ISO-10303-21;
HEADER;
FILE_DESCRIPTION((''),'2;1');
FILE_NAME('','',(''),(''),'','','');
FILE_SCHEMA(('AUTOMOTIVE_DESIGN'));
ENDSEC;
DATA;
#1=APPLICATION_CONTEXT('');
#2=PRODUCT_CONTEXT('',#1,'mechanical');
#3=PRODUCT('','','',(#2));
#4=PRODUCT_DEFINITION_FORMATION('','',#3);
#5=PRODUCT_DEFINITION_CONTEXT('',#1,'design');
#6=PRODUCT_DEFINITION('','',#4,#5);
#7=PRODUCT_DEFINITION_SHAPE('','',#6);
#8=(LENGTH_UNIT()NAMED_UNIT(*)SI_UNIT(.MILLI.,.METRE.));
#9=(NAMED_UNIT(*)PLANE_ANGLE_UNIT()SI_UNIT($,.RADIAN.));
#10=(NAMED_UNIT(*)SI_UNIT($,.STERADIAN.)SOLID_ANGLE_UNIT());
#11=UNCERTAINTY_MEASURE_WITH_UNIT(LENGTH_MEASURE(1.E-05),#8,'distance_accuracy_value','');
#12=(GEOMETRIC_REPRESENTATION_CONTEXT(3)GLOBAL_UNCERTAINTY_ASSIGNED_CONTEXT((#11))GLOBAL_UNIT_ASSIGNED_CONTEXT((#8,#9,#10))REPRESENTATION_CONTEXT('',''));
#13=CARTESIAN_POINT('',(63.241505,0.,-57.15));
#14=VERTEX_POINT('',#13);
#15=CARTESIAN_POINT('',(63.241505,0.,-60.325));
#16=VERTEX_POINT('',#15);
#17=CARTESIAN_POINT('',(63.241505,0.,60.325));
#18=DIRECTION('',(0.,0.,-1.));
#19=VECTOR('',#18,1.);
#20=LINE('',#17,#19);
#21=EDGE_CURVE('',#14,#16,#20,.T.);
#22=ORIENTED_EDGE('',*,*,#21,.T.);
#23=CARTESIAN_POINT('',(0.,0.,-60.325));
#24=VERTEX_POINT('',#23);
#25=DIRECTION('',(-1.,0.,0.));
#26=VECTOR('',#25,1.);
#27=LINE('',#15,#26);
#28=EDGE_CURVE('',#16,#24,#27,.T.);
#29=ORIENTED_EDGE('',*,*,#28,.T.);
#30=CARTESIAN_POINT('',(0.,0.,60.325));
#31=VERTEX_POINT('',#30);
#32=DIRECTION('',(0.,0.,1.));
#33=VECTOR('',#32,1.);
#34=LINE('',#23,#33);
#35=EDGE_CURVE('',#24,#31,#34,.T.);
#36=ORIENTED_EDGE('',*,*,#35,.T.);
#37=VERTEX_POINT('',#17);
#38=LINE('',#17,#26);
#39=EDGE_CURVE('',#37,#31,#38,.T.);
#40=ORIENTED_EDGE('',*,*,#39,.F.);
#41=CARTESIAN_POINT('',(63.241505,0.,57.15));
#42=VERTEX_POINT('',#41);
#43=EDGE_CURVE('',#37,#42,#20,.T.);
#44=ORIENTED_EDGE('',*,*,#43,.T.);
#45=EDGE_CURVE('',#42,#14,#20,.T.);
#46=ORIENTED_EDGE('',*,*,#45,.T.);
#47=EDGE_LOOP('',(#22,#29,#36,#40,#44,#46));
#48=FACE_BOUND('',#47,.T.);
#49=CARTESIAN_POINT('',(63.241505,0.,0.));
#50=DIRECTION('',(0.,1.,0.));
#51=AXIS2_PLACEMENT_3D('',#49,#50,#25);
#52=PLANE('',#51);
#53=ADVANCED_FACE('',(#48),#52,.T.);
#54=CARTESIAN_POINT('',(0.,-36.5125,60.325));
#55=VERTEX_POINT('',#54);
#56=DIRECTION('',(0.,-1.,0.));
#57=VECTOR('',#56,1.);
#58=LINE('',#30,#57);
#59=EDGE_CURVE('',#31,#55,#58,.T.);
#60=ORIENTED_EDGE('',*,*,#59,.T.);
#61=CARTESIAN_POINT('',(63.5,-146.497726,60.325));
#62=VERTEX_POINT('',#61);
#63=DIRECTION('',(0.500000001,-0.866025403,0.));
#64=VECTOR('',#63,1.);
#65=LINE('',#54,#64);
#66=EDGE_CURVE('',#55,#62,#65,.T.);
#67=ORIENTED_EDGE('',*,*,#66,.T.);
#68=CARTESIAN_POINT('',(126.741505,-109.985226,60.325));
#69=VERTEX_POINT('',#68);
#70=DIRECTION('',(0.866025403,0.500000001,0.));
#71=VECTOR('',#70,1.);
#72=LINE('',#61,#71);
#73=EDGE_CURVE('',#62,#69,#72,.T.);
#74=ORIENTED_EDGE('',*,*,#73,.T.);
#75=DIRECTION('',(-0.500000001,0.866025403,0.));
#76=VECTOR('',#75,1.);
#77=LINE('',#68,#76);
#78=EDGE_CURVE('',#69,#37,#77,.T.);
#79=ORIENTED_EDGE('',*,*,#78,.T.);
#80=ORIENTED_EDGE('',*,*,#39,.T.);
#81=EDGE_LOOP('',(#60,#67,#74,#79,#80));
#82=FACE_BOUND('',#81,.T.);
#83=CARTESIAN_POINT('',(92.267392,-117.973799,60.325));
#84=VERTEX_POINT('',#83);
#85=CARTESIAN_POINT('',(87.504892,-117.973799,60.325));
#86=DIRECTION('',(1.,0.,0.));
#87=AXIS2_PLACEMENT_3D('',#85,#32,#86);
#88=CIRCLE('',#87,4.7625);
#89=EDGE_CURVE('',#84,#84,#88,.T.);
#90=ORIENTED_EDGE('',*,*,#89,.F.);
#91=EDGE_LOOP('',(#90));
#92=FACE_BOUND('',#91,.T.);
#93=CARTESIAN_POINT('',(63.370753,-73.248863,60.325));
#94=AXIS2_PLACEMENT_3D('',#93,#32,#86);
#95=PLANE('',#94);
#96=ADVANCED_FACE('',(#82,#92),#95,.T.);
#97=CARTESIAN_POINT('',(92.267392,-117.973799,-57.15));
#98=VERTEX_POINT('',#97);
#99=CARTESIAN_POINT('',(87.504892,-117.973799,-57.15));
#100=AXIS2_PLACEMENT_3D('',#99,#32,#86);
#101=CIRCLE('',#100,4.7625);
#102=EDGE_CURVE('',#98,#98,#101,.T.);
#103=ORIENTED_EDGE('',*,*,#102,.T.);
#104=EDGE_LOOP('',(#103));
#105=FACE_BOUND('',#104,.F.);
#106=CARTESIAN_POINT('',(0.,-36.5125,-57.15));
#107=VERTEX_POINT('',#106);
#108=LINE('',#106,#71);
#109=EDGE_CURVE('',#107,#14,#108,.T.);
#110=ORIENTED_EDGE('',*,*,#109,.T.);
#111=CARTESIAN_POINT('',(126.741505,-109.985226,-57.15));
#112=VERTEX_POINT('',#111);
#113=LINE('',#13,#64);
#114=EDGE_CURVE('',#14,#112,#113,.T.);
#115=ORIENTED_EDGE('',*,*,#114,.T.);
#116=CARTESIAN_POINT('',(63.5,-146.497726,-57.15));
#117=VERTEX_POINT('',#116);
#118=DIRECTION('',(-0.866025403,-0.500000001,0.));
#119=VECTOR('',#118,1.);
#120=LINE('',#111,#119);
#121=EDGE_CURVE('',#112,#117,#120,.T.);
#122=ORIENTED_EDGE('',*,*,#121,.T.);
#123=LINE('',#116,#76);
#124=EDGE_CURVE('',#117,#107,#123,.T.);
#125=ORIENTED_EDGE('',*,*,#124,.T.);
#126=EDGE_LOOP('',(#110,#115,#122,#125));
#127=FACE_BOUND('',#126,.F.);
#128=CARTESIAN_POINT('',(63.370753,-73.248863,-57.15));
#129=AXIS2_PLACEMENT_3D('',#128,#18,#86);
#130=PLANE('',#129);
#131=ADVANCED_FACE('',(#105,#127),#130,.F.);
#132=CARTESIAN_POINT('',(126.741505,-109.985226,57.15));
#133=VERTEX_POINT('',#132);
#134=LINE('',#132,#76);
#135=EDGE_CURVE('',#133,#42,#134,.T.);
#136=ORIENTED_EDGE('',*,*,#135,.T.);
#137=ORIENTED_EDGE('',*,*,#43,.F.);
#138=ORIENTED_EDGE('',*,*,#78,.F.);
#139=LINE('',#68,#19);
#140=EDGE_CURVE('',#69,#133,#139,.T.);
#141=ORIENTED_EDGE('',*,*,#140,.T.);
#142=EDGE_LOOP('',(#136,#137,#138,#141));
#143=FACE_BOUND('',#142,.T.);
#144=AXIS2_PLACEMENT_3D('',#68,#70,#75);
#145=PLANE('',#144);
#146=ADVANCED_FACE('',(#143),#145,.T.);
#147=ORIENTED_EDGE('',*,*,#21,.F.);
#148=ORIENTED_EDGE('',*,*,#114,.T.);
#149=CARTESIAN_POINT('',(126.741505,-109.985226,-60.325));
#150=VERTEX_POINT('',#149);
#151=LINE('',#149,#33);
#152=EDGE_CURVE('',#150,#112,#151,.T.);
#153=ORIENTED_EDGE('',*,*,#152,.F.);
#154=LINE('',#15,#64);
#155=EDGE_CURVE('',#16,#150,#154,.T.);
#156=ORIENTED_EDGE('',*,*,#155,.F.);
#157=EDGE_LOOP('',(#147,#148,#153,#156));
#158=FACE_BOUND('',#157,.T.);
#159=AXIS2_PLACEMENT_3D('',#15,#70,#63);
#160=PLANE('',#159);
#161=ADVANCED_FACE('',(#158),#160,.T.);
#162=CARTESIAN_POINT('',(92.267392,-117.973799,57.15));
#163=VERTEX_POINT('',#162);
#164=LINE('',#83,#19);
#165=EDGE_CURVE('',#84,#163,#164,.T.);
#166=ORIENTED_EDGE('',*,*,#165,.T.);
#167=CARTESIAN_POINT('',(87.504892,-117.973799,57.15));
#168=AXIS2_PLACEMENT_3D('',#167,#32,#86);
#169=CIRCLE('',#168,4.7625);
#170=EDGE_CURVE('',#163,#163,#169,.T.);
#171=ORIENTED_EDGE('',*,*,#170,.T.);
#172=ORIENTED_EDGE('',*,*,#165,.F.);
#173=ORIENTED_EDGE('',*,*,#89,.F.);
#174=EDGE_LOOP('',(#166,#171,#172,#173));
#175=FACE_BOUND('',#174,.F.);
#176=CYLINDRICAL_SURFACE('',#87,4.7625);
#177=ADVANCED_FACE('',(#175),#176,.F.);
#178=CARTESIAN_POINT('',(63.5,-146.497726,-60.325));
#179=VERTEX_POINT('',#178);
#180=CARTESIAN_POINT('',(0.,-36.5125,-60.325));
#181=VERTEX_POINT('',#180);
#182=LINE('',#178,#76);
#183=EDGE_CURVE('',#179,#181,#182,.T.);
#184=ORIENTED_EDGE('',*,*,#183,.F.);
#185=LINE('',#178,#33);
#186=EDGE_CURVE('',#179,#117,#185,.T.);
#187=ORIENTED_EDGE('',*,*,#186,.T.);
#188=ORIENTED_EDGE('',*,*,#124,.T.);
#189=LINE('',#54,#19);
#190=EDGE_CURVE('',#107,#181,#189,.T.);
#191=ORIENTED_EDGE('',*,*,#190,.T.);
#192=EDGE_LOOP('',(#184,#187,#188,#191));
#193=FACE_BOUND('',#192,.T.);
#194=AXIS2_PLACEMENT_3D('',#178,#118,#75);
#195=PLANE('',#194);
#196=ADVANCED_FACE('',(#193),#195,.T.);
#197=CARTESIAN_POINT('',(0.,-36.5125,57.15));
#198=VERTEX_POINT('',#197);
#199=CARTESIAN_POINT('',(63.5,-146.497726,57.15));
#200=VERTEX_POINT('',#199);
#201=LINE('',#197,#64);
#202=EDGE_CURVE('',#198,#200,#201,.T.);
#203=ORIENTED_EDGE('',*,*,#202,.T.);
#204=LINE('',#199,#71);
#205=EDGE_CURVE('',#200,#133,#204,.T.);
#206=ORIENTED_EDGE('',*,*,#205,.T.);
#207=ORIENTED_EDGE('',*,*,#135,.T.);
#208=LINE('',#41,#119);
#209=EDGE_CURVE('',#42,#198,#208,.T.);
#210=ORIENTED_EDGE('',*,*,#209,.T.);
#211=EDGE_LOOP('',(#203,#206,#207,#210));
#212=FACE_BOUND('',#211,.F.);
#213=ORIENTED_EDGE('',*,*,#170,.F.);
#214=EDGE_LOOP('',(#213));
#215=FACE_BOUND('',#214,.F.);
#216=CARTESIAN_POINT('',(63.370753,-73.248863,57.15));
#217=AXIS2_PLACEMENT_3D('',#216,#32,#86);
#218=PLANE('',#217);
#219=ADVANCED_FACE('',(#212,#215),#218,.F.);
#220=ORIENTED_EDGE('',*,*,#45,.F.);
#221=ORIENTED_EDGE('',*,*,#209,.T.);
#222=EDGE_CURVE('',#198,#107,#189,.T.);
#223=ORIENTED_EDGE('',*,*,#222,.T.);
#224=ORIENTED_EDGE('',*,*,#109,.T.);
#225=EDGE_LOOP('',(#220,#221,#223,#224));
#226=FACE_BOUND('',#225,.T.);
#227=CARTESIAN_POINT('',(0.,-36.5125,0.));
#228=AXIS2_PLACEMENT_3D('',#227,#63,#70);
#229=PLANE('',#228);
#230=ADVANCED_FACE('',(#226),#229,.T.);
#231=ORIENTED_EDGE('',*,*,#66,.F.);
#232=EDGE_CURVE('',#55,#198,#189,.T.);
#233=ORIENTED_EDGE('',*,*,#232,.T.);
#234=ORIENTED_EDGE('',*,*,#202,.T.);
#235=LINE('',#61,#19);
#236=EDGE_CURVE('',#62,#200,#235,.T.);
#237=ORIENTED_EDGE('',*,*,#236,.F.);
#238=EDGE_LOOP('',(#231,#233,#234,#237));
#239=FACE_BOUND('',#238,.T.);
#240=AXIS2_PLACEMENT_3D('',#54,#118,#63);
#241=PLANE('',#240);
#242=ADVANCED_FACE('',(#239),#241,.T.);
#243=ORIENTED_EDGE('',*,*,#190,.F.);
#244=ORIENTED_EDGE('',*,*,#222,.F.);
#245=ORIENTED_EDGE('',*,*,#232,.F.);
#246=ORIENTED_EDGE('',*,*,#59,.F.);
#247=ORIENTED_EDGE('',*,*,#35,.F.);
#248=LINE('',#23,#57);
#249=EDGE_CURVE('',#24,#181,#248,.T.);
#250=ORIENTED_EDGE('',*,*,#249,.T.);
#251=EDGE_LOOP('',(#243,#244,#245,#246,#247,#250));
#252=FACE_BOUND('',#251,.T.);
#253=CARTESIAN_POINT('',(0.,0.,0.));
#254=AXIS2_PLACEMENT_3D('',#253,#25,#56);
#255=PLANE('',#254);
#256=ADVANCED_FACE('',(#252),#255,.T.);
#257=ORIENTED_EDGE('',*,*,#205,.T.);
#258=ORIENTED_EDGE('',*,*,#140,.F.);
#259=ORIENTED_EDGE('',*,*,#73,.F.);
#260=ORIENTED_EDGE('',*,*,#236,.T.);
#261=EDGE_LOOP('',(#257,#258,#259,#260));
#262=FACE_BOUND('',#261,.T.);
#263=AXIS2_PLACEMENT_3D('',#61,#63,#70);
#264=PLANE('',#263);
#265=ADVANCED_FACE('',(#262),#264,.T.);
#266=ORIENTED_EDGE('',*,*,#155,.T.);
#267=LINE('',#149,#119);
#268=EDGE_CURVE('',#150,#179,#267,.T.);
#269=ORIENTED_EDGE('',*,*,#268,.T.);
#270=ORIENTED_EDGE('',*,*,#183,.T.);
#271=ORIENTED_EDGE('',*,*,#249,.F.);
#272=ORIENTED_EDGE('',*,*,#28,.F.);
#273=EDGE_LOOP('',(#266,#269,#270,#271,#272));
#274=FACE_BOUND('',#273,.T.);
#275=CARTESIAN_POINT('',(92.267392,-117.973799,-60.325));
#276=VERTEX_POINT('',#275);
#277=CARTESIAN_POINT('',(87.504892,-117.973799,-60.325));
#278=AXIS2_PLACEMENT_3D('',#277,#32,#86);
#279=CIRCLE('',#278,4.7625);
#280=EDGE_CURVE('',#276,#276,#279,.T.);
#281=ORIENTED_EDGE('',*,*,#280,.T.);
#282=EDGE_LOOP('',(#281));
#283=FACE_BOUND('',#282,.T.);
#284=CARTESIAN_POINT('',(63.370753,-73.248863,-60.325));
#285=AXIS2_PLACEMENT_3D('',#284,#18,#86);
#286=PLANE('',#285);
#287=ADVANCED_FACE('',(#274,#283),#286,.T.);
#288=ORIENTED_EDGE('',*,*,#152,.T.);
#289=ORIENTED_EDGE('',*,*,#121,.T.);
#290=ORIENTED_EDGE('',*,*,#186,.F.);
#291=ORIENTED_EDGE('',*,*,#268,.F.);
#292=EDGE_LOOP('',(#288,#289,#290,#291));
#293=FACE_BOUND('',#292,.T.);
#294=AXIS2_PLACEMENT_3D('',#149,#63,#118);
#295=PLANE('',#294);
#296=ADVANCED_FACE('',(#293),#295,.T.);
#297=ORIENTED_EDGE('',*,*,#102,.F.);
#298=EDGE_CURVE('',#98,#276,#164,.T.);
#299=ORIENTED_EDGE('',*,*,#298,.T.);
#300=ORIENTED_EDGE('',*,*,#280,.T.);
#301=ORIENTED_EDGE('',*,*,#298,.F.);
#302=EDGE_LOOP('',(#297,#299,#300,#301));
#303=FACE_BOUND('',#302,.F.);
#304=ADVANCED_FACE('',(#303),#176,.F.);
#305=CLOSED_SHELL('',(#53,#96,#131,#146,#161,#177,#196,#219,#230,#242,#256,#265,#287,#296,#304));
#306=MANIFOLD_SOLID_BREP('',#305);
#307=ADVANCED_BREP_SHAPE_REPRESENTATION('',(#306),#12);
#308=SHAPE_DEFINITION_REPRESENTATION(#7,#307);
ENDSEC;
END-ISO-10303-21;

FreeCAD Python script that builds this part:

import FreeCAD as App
import Part
import Sketcher
from FreeCAD import Vector
Q = App.Units.Quantity

doc = App.newDocument("Part")
params = doc.addObject("Spreadsheet::Sheet", "Params")
for row, (alias, value) in enumerate([
    ("sketch1_height", "1.4375 in"),
    ("pad1_length", "4.75 in"),
    ("sketch2_length", "5 in"),
    ("sketch2_length2", "2.875 in"),
    ("pad2_length", "0.125 in"),
    ("sketch3_length", "5 in"),
    ("sketch3_length2", "2.875 in"),
    ("pad3_length", "0.125 in"),
    ("sketch4_diameter", "0.375 in"),
], start=1):
    params.set(f"A{row}", alias)
    params.set(f"B{row}", "=" + value)
    params.setAlias(f"B{row}", alias)

body = doc.addObject("PartDesign::Body", "Body")

# Sketch on XY plane
sketch1 = body.newObject("Sketcher::SketchObject", "Sketch")
sketch1.AttachmentSupport = (doc.getObject("XY_Plane"), [""])
sketch1.MapMode = "FlatFace"
sketch1.addGeometry(Part.LineSegment(Vector(63, 0, 0), Vector(0, 0, 0)), False)
sketch1.addGeometry(Part.LineSegment(Vector(0, 0, 0), Vector(0, -37, 0)), False)
sketch1.addGeometry(Part.LineSegment(Vector(0, -37, 0), Vector(63, 0, 0)), False)
sketch1.addConstraint(Sketcher.Constraint("Coincident", 0, 2, 1, 1))
sketch1.addConstraint(Sketcher.Constraint("Coincident", 1, 2, 2, 1))
sketch1.addConstraint(Sketcher.Constraint("Coincident", 2, 2, 0, 1))
sketch1.addConstraint(Sketcher.Constraint("Horizontal", 0))
sketch1.addConstraint(Sketcher.Constraint("Vertical", 1))
sketch1.addConstraint(Sketcher.Constraint("Coincident", 0, 2, -1, 1))
sketch1.addConstraint(Sketcher.Constraint("Angle", 2, Q("30 deg")))
sketch1.addConstraint(Sketcher.Constraint("DistanceY", 1, 2, 1, 1, Q("1.4375 in")))
sketch1.setExpression("Constraints[7]", "Params.sketch1_height")
pad1 = body.newObject("PartDesign::Pad", "Pad")
pad1.Profile = sketch1
pad1.setExpression("Length", "Params.pad1_length")
pad1.Midplane = True

# Sketch on XY plane
sketch2 = body.newObject("Sketcher::SketchObject", "Sketch001")
sketch2.AttachmentSupport = (doc.getObject("XY_Plane"), [""])
sketch2.MapMode = "FlatFace"
sketch2.AttachmentOffset = App.Placement(Vector(0, 0, 2.375 * 25.4), App.Rotation())
sketch2.addGeometry(Part.LineSegment(Vector(63, 0, 0), Vector(0, -37, 0)), False)
sketch2.addGeometry(Part.LineSegment(Vector(0, -37, 0), Vector(64, -146, 0)), False)
sketch2.addGeometry(Part.LineSegment(Vector(64, -146, 0), Vector(127, -110, 0)), False)
sketch2.addGeometry(Part.LineSegment(Vector(127, -110, 0), Vector(63, 0, 0)), False)
sketch2.addConstraint(Sketcher.Constraint("Coincident", 0, 2, 1, 1))
sketch2.addConstraint(Sketcher.Constraint("Coincident", 1, 2, 2, 1))
sketch2.addConstraint(Sketcher.Constraint("Coincident", 2, 2, 3, 1))
sketch2.addConstraint(Sketcher.Constraint("Coincident", 3, 2, 0, 1))
sketch2.addConstraint(Sketcher.Constraint("PointOnObject", 0, 2, -2))
sketch2.addConstraint(Sketcher.Constraint("PointOnObject", 3, 2, -1))
sketch2.addConstraint(Sketcher.Constraint("Perpendicular", 0, 1))
sketch2.addConstraint(Sketcher.Constraint("Perpendicular", 1, 2))
sketch2.addConstraint(Sketcher.Constraint("Perpendicular", 2, 3))
sketch2.addConstraint(Sketcher.Constraint("Distance", 1, Q("5 in")))
sketch2.addConstraint(Sketcher.Constraint("Angle", 0, Q("-150 deg")))
sketch2.addConstraint(Sketcher.Constraint("Distance", 0, Q("2.875 in")))
sketch2.setExpression("Constraints[9]", "Params.sketch2_length")
sketch2.setExpression("Constraints[11]", "Params.sketch2_length2")
pad2 = body.newObject("PartDesign::Pad", "Pad001")
pad2.Profile = sketch2
pad2.setExpression("Length", "Params.pad2_length")
pad2.Reversed = True

# Sketch on XY plane
sketch3 = body.newObject("Sketcher::SketchObject", "Sketch002")
sketch3.AttachmentSupport = (doc.getObject("XY_Plane"), [""])
sketch3.MapMode = "FlatFace"
sketch3.AttachmentOffset = App.Placement(Vector(0, 0, -2.375 * 25.4), App.Rotation())
sketch3.addGeometry(Part.LineSegment(Vector(64, -146, 0), Vector(0, -37, 0)), False)
sketch3.addGeometry(Part.LineSegment(Vector(0, -37, 0), Vector(63, 0, 0)), False)
sketch3.addGeometry(Part.LineSegment(Vector(63, 0, 0), Vector(127, -110, 0)), False)
sketch3.addGeometry(Part.LineSegment(Vector(127, -110, 0), Vector(64, -146, 0)), False)
sketch3.addConstraint(Sketcher.Constraint("Coincident", 0, 2, 1, 1))
sketch3.addConstraint(Sketcher.Constraint("Coincident", 1, 2, 2, 1))
sketch3.addConstraint(Sketcher.Constraint("Coincident", 2, 2, 3, 1))
sketch3.addConstraint(Sketcher.Constraint("Coincident", 3, 2, 0, 1))
sketch3.addConstraint(Sketcher.Constraint("PointOnObject", 0, 2, -2))
sketch3.addConstraint(Sketcher.Constraint("PointOnObject", 1, 2, -1))
sketch3.addConstraint(Sketcher.Constraint("Perpendicular", 0, 1))
sketch3.addConstraint(Sketcher.Constraint("Perpendicular", 1, 2))
sketch3.addConstraint(Sketcher.Constraint("Perpendicular", 2, 3))
sketch3.addConstraint(Sketcher.Constraint("Distance", 0, Q("5 in")))
sketch3.addConstraint(Sketcher.Constraint("Angle", 0, Q("120 deg")))
sketch3.addConstraint(Sketcher.Constraint("Distance", 1, Q("2.875 in")))
sketch3.setExpression("Constraints[9]", "Params.sketch3_length")
sketch3.setExpression("Constraints[11]", "Params.sketch3_length2")
pad3 = body.newObject("PartDesign::Pad", "Pad002")
pad3.Profile = sketch3
pad3.setExpression("Length", "Params.pad3_length")

# Sketch on XY plane
sketch4 = body.newObject("Sketcher::SketchObject", "Sketch003")
sketch4.AttachmentSupport = (doc.getObject("XY_Plane"), [""])
sketch4.MapMode = "FlatFace"
sketch4.AttachmentOffset = App.Placement(Vector(0, 0, 2.375 * 25.4), App.Rotation())
sketch4.addGeometry(Part.Circle(Vector(87.5, -118, 0), Vector(0, 0, 1), 4.8), False)
sketch4.addConstraint(Sketcher.Constraint("Diameter", 0, Q("0.375 in")))
sketch4.addConstraint(Sketcher.Constraint("DistanceY", 0, 3, -1, 1, 117.973799))
sketch4.addConstraint(Sketcher.Constraint("DistanceX", -1, 1, 0, 3, 87.504892))
sketch4.setExpression("Constraints[0]", "Params.sketch4_diameter")
pocket1 = body.newObject("PartDesign::Pocket", "Pocket")
pocket1.Profile = sketch4
pocket1.Type = "ThroughAll"

doc.recompute()
